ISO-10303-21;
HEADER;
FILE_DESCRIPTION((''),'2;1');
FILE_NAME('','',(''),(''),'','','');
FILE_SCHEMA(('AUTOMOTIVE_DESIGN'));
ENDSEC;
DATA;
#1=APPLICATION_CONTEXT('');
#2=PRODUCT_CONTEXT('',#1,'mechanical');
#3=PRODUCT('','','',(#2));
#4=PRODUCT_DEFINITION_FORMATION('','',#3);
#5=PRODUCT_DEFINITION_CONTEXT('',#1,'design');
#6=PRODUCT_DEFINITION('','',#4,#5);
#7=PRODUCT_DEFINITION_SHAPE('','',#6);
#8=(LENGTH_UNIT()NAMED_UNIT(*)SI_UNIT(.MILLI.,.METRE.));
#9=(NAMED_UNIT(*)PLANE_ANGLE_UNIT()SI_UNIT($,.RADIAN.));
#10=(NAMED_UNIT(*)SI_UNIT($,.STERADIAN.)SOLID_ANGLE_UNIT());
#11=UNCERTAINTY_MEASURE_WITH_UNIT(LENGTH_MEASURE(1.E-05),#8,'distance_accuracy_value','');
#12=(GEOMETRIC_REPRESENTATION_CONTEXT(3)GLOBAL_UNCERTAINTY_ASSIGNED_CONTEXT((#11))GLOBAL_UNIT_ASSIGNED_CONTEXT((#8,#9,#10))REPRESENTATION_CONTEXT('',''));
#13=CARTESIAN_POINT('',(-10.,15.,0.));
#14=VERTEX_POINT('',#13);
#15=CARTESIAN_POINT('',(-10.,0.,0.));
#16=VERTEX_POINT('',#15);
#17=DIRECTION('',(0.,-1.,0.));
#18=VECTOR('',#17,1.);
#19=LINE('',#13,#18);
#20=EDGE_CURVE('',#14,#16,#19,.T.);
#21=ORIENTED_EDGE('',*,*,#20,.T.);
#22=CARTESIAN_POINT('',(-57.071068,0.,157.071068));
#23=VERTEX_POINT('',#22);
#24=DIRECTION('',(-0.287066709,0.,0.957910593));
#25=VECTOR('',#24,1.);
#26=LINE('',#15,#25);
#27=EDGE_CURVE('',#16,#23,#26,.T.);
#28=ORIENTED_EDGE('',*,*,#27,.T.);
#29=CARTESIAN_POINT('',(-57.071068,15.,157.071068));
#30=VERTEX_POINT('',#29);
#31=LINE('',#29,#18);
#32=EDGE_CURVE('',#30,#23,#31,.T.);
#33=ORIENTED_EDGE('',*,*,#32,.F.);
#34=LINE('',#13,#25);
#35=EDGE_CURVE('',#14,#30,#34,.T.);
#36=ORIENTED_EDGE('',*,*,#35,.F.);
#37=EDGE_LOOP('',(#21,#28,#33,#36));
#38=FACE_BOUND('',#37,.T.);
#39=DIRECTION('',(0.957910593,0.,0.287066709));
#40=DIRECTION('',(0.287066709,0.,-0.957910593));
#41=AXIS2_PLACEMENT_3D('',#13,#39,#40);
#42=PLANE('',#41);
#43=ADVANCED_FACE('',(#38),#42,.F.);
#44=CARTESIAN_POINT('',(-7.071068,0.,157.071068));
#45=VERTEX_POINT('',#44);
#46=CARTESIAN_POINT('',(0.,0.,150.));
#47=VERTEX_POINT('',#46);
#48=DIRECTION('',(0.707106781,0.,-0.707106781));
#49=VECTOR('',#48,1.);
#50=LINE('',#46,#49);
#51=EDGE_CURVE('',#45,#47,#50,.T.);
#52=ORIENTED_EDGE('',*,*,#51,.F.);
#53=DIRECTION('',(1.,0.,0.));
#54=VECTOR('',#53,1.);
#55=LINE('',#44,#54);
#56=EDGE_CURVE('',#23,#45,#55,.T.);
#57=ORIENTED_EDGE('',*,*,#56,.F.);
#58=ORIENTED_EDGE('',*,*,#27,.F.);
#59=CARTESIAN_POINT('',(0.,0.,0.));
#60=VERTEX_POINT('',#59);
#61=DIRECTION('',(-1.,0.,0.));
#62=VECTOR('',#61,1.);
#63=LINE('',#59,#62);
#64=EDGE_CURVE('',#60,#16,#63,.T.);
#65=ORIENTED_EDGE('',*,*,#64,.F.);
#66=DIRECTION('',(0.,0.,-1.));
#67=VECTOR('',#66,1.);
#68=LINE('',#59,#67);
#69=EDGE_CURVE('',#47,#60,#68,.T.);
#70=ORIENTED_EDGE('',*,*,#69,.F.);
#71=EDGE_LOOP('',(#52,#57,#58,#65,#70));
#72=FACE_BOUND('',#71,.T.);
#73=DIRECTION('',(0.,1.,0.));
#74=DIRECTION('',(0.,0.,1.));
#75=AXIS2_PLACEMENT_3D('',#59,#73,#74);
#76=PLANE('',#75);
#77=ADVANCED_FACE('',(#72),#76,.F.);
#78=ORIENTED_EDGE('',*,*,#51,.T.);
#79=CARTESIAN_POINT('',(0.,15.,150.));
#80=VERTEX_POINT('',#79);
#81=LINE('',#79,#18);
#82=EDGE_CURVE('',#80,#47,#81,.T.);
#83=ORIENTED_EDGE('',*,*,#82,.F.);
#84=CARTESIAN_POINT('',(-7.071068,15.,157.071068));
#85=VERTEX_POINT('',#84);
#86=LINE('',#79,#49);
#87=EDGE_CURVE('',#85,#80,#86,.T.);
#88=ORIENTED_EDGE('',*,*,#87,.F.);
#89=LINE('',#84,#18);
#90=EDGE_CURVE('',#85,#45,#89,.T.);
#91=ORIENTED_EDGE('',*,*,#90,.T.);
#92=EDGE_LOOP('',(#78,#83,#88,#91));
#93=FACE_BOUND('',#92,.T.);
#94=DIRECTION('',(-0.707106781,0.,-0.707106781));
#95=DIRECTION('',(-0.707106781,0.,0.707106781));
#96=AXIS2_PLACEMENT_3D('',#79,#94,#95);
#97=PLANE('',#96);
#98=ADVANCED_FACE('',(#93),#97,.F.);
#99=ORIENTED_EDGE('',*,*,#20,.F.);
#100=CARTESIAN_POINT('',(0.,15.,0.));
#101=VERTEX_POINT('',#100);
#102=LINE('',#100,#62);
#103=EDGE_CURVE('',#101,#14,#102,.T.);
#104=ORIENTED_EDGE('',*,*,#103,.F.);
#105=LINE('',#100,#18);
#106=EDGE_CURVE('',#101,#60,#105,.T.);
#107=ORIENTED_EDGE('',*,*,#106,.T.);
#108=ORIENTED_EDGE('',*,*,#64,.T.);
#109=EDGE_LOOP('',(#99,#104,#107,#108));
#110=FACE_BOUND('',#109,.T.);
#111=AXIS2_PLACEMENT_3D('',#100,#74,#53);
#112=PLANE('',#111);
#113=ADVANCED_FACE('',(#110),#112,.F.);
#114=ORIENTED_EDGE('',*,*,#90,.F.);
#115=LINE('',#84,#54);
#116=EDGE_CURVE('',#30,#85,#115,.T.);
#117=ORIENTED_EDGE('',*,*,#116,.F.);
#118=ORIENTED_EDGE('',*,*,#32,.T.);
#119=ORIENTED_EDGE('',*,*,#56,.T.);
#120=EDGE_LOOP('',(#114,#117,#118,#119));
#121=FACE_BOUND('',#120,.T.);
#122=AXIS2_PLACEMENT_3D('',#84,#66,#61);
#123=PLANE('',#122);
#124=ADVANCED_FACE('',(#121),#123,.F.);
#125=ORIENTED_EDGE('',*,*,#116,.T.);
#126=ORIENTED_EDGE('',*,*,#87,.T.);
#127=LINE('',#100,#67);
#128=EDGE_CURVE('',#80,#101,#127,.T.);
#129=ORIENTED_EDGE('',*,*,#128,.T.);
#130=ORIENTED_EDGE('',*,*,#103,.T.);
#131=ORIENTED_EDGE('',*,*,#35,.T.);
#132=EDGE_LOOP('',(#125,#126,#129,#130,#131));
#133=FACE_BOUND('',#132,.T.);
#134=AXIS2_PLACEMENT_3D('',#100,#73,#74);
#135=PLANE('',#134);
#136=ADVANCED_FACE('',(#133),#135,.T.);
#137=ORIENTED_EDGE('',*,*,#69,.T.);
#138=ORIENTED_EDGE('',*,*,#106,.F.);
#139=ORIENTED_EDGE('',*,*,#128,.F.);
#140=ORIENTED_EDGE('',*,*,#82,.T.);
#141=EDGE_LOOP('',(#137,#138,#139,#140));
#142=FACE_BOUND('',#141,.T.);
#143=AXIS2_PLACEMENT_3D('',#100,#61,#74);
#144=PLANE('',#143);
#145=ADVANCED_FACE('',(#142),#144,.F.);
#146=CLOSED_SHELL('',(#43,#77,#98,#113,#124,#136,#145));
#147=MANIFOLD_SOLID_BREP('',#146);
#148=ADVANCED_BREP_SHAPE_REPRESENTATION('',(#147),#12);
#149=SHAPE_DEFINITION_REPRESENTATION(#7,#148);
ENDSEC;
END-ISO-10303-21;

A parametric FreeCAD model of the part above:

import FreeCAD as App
import Part
import Sketcher
from FreeCAD import Vector
Q = App.Units.Quantity

doc = App.newDocument("Part")
body = doc.addObject("PartDesign::Body", "Body")

# Sketch on XZ plane
sketch1 = body.newObject("Sketcher::SketchObject", "Sketch")
sketch1.AttachmentSupport = (doc.getObject("XZ_Plane"), [""])
sketch1.MapMode = "FlatFace"
sketch1.addGeometry([
    Part.LineSegment(Vector(0, 150, 0), Vector(0, 0, 0)),  # 0
    Part.LineSegment(Vector(0, 0, 0), Vector(-10, 0, 0)),  # 1
    Part.LineSegment(Vector(-10, 0, 0), Vector(-57, 157, 0)),  # 2
    Part.LineSegment(Vector(-57, 157, 0), Vector(-7, 157, 0)),  # 3
    Part.LineSegment(Vector(-7, 157, 0), Vector(0, 150, 0)),  # 4
], False)
sketch1.addConstraint([
    Sketcher.Constraint("Coincident", 0, 2, 1, 1),
    Sketcher.Constraint("Coincident", 1, 2, 2, 1),
    Sketcher.Constraint("Coincident", 2, 2, 3, 1),
    Sketcher.Constraint("Coincident", 3, 2, 4, 1),
    Sketcher.Constraint("Coincident", 4, 2, 0, 1),
    Sketcher.Constraint("Vertical", 0),
    Sketcher.Constraint("Horizontal", 1),
    Sketcher.Constraint("Horizontal", 3),
    Sketcher.Constraint("Coincident", 0, 2, -1, 1),
    Sketcher.Constraint("DistanceX", 1, 2, 1, 1, Q("10 mm")),
    Sketcher.Constraint("DistanceX", 3, 1, 3, 2, Q("50 mm")),
    Sketcher.Constraint("DistanceY", 0, 2, 0, 1, Q("150 mm")),
    Sketcher.Constraint("Angle", 4, Q("-45 deg")),
    Sketcher.Constraint("Distance", 4, Q("10 mm")),
])
pad1 = body.newObject("PartDesign::Pad", "Pad")
pad1.Profile = sketch1
pad1.Length = 15
pad1.Reversed = True

doc.recompute()
